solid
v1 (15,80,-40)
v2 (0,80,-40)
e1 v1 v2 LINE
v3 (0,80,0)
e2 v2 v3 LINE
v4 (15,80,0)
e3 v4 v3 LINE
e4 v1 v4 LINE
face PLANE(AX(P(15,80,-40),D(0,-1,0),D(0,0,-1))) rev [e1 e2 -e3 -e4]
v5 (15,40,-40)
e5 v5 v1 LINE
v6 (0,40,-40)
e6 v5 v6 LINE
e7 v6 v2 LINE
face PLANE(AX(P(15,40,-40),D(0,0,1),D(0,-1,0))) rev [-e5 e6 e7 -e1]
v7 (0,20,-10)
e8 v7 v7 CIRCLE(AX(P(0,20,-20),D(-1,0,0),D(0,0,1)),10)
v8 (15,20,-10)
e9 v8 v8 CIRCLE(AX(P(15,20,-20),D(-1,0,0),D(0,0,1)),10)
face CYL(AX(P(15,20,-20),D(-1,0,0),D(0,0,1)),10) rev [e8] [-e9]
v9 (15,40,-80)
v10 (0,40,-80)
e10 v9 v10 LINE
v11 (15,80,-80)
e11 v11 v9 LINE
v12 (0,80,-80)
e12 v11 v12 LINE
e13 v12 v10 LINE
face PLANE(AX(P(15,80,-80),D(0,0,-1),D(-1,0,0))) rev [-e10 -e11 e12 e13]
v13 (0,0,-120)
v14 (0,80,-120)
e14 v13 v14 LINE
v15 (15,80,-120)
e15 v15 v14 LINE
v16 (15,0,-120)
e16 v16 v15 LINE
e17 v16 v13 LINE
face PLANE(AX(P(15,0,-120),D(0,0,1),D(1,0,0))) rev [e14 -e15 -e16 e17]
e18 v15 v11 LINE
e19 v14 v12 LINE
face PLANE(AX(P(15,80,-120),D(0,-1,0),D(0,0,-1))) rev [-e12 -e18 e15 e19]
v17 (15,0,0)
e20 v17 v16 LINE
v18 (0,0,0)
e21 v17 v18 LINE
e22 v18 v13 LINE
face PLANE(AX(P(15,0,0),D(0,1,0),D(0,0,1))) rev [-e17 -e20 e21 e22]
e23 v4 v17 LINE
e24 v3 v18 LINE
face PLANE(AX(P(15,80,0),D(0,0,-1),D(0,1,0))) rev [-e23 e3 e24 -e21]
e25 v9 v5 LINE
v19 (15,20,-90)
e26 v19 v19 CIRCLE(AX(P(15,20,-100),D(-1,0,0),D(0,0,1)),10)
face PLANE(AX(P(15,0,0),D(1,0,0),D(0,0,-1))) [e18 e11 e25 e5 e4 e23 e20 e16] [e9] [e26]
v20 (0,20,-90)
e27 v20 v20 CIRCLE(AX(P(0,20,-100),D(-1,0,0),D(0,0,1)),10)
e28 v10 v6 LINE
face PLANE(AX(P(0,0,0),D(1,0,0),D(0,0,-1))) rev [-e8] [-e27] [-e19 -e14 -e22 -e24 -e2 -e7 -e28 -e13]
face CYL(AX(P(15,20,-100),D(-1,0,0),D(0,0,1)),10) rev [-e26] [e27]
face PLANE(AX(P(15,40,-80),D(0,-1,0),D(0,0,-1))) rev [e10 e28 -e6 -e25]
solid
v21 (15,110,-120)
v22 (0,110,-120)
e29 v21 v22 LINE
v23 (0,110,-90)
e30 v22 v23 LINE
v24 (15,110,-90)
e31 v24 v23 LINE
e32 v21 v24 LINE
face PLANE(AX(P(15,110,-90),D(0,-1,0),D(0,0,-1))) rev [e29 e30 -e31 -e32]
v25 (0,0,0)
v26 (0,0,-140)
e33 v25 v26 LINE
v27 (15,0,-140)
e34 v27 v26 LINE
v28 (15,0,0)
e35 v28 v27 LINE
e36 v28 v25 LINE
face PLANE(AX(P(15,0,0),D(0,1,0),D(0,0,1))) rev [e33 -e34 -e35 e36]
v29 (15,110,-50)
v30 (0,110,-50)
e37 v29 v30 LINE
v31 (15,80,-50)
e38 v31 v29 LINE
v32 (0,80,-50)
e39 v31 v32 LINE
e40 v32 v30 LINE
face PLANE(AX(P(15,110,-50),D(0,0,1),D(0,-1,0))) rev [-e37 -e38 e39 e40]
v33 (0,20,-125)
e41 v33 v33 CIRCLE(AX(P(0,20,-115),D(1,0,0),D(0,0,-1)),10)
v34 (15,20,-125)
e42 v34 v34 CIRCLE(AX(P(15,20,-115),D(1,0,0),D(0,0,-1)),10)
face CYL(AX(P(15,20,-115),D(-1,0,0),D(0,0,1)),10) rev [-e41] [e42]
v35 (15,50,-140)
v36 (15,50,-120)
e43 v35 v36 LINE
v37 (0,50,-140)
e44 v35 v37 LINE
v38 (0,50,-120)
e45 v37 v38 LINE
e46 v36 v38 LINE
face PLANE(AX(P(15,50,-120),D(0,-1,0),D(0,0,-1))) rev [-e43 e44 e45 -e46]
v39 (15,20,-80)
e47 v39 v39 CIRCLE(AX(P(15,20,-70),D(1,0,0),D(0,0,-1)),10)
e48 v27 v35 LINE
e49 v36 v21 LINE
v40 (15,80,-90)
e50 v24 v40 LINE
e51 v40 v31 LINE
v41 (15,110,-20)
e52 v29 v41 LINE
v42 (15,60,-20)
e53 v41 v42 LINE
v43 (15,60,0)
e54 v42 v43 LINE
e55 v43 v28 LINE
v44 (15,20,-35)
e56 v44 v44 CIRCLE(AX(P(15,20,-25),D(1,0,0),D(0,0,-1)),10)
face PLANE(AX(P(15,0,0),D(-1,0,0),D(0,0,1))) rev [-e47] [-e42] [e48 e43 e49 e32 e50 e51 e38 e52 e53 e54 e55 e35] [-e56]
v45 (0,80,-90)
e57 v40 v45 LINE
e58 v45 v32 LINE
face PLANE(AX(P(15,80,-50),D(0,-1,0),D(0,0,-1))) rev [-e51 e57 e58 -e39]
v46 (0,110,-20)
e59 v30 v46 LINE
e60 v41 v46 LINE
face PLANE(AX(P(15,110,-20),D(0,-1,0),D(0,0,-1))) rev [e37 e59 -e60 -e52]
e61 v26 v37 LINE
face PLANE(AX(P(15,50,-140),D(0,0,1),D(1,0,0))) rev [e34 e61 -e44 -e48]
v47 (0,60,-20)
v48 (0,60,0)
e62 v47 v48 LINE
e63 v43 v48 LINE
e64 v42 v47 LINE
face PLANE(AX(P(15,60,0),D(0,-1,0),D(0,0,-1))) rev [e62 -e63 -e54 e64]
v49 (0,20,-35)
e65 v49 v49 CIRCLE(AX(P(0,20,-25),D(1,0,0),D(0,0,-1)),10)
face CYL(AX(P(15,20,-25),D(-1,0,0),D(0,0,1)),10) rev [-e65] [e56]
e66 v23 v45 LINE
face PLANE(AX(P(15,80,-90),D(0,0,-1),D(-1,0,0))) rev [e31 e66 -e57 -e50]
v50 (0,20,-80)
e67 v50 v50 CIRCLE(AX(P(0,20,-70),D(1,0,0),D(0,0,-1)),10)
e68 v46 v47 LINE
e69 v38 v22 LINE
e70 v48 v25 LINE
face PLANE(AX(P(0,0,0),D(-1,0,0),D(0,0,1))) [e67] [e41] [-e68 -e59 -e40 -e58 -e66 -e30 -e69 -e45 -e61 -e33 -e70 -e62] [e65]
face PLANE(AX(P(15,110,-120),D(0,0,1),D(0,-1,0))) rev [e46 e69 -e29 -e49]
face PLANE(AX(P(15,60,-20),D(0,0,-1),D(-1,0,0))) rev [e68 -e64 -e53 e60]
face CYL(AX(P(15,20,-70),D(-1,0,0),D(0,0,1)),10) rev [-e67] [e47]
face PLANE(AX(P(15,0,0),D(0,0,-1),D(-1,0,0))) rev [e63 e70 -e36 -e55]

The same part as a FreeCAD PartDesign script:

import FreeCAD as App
import Part
import Sketcher

V = App.Vector
Q = App.Units.Quantity

doc = App.newDocument("Part")
body = doc.addObject("PartDesign::Body", "Body")

sketch1 = body.newObject("Sketcher::SketchObject", "Sketch")
sketch1.AttachmentSupport = (doc.getObject("YZ_Plane"), [""])
sketch1.MapMode = "FlatFace"
sketch1.addGeometry([
    Part.LineSegment(V(0, 0, 0), V(0, -120, 0)),
    Part.LineSegment(V(0, -120, 0), V(80, -120, 0)),
    Part.LineSegment(V(80, -120, 0), V(80, -80, 0)),
    Part.LineSegment(V(80, -80, 0), V(40, -80, 0)),
    Part.LineSegment(V(40, -80, 0), V(40, -40, 0)),
    Part.LineSegment(V(40, -40, 0), V(80, -40, 0)),
    Part.LineSegment(V(80, -40, 0), V(80, 0, 0)),
    Part.LineSegment(V(80, 0, 0), V(0, 0, 0)),
], False)
sketch1.addConstraint([
    Sketcher.Constraint("Coincident", 0, 2, 1, 1),
    Sketcher.Constraint("Coincident", 1, 2, 2, 1),
    Sketcher.Constraint("Coincident", 2, 2, 3, 1),
    Sketcher.Constraint("Coincident", 3, 2, 4, 1),
    Sketcher.Constraint("Coincident", 4, 2, 5, 1),
    Sketcher.Constraint("Coincident", 5, 2, 6, 1),
    Sketcher.Constraint("Coincident", 6, 2, 7, 1),
    Sketcher.Constraint("Coincident", 7, 2, 0, 1),
    Sketcher.Constraint("Vertical", 0),
    Sketcher.Constraint("Horizontal", 1),
    Sketcher.Constraint("Vertical", 2),
    Sketcher.Constraint("Horizontal", 3),
    Sketcher.Constraint("Vertical", 4),
    Sketcher.Constraint("Horizontal", 5),
    Sketcher.Constraint("Vertical", 6),
    Sketcher.Constraint("Horizontal", 7),
    Sketcher.Constraint("Coincident", 7, 2, -1, 1),
    Sketcher.Constraint("Vertical", 2, 2, 5, 2),
    Sketcher.Constraint("Equal", 5, 2),
    Sketcher.Constraint("Equal", 2, 4),
    Sketcher.Constraint("Equal", 4, 6),
    Sketcher.Constraint("DistanceX", 1, 1, 1, 2, Q("80 mm")),
    Sketcher.Constraint("DistanceX", 3, 2, 3, 1, Q("40 mm")),
])
pad1 = body.newObject("PartDesign::Pad", "Pad")
pad1.Profile = sketch1
pad1.Length = 15

sketch2 = body.newObject("Sketcher::SketchObject", "Sketch001")
sketch2.AttachmentSupport = (doc.getObject("YZ_Plane"), [""])
sketch2.MapMode = "FlatFace"
sketch2.addGeometry([
    Part.Circle(V(20, -100, 0), V(0, 0, 1), 10),
    Part.Circle(V(20, -20, 0), V(0, 0, 1), 10),
], False)
sketch2.addConstraint([
    Sketcher.Constraint("Equal", 0, 1),
    Sketcher.Constraint("Vertical", 0, 3, 1, 3),
    Sketcher.Constraint("Diameter", 0, Q("20 mm")),
    Sketcher.Constraint("DistanceX", -1, 1, 0, 3, Q("20 mm")),
    Sketcher.Constraint("DistanceY", 0, 3, -1, 1, Q("100 mm")),
    Sketcher.Constraint("DistanceY", 1, 3, -1, 1, Q("20 mm")),
])
pocket1 = body.newObject("PartDesign::Pocket", "Pocket")
pocket1.Profile = sketch2
pocket1.Length = 15
pocket1.Reversed = True
body2 = doc.addObject("PartDesign::Body", "Body001")

sketch3 = body2.newObject("Sketcher::SketchObject", "Sketch002")
sketch3.AttachmentSupport = (doc.getObject("YZ_Plane001"), [""])
sketch3.MapMode = "FlatFace"
sketch3.addGeometry([
    Part.LineSegment(V(0, 0, 0), V(0, -140, 0)),
    Part.LineSegment(V(0, -140, 0), V(50, -140, 0)),
    Part.LineSegment(V(50, -140, 0), V(50, -120, 0)),
    Part.LineSegment(V(50, -120, 0), V(110, -120, 0)),
    Part.LineSegment(V(110, -120, 0), V(110, -90, 0)),
    Part.LineSegment(V(110, -90, 0), V(80, -90, 0)),
    Part.LineSegment(V(80, -90, 0), V(80, -50, 0)),
    Part.LineSegment(V(80, -50, 0), V(110, -50, 0)),
    Part.LineSegment(V(110, -50, 0), V(110, -20, 0)),
    Part.LineSegment(V(110, -20, 0), V(60, -20, 0)),
    Part.LineSegment(V(60, -20, 0), V(60, 0, 0)),
    Part.LineSegment(V(60, 0, 0), V(0, 0, 0)),
    Part.Circle(V(20, -25, 0), V(0, 0, 1), 10),
    Part.Circle(V(20, -70, 0), V(0, 0, 1), 10),
    Part.Circle(V(20, -115, 0), V(0, 0, 1), 10),
], False)
sketch3.addConstraint([
    Sketcher.Constraint("Coincident", 0, 2, 1, 1),
    Sketcher.Constraint("Coincident", 1, 2, 2, 1),
    Sketcher.Constraint("Coincident", 2, 2, 3, 1),
    Sketcher.Constraint("Coincident", 3, 2, 4, 1),
    Sketcher.Constraint("Coincident", 4, 2, 5, 1),
    Sketcher.Constraint("Coincident", 5, 2, 6, 1),
    Sketcher.Constraint("Coincident", 6, 2, 7, 1),
    Sketcher.Constraint("Coincident", 7, 2, 8, 1),
    Sketcher.Constraint("Coincident", 8, 2, 9, 1),
    Sketcher.Constraint("Coincident", 9, 2, 10, 1),
    Sketcher.Constraint("Coincident", 10, 2, 11, 1),
    Sketcher.Constraint("Coincident", 11, 2, 0, 1),
    Sketcher.Constraint("Vertical", 0),
    Sketcher.Constraint("Horizontal", 1),
    Sketcher.Constraint("Vertical", 2),
    Sketcher.Constraint("Horizontal", 3),
    Sketcher.Constraint("Vertical", 4),
    Sketcher.Constraint("Horizontal", 5),
    Sketcher.Constraint("Vertical", 6),
    Sketcher.Constraint("Horizontal", 7),
    Sketcher.Constraint("Vertical", 8),
    Sketcher.Constraint("Horizontal", 9),
    Sketcher.Constraint("Vertical", 10),
    Sketcher.Constraint("Horizontal", 11),
    Sketcher.Constraint("Coincident", 11, 2, -1, 1),
    Sketcher.Constraint("Equal", 12, 13),
    Sketcher.Constraint("Equal", 13, 14),
    Sketcher.Constraint("Vertical", 12, 3, 13, 3),
    Sketcher.Constraint("Vertical", 13, 3, 14, 3),
    Sketcher.Constraint("Vertical", 4, 2, 7, 2),
    Sketcher.Constraint("Equal", 1, 9),
    Sketcher.Constraint("Equal", 7, 4),
    Sketcher.Constraint("Equal", 4, 8),
    Sketcher.Constraint("Equal", 2, 10),
    Sketcher.Constraint("Diameter", 12, Q("20 mm")),
    Sketcher.Constraint("DistanceX", 1, 1, 1, 2, Q("50 mm")),
    Sketcher.Constraint("DistanceX", 3, 1, 3, 2, Q("60 mm")),
    Sketcher.Constraint("DistanceX", 5, 2, 5, 1, Q("30 mm")),
    Sketcher.Constraint("DistanceY", 0, 2, 0, 1, Q("140 mm")),
    Sketcher.Constraint("DistanceY", 2, 1, 2, 2, Q("20 mm")),
    Sketcher.Constraint("DistanceX", -1, 1, 12, 3, Q("20 mm")),
    Sketcher.Constraint("DistanceY", 12, 3, -1, 1, Q("25 mm")),
    Sketcher.Constraint("DistanceY", 13, 3, -1, 1, Q("70 mm")),
    Sketcher.Constraint("DistanceY", 14, 3, -1, 1, Q("115 mm")),
])
pad2 = body2.newObject("PartDesign::Pad", "Pad001")
pad2.Profile = sketch3
pad2.Length = 15

doc.recompute()
